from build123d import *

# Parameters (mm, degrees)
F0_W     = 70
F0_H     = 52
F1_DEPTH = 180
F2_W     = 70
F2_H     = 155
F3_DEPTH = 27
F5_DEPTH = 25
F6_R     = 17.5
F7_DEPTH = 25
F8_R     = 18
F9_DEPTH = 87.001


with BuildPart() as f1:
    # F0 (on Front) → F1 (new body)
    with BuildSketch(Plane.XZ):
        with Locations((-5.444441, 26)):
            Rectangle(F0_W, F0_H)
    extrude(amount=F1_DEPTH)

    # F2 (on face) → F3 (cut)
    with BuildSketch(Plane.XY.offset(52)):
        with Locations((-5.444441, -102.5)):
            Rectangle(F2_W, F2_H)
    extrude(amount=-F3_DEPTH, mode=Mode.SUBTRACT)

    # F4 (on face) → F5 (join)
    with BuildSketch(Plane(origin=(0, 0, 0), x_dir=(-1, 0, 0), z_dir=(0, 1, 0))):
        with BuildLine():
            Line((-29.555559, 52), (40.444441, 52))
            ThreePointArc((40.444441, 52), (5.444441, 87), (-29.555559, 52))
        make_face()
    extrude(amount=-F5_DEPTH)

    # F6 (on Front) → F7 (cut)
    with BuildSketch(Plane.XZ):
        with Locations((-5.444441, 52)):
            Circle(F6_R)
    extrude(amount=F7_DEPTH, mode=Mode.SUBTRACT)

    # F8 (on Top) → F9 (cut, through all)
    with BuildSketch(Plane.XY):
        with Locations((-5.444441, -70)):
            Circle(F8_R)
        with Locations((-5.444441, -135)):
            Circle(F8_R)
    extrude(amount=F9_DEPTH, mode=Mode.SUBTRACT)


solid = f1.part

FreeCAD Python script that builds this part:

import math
import FreeCAD as App
import Part
import Sketcher
from FreeCAD import Vector
Q = App.Units.Quantity


def add_polygon(sketch, points):
    """Adds a closed chain of lines whose ends are joined by coincident constraints."""
    first, n = sketch.GeometryCount, len(points)
    for a, b in zip(points, points[1:] + points[:1]):
        sketch.addGeometry(Part.LineSegment(App.Vector(*a, 0), App.Vector(*b, 0)), False)
    for i in range(n):
        sketch.addConstraint(Sketcher.Constraint("Coincident", first + i, 2, first + (i + 1) % n, 1))

doc = App.newDocument("Part")
body = doc.addObject("PartDesign::Body", "Body")

# Sketch on XZ plane
sketch1 = body.newObject("Sketcher::SketchObject", "Sketch")
sketch1.AttachmentSupport = (doc.getObject("XZ_Plane"), [""])
sketch1.MapMode = "FlatFace"
add_polygon(sketch1, [(-40, 52), (-40, 0), (30, 0), (30, 52)])  # lines 0-3
sketch1.addConstraint([
    Sketcher.Constraint("Vertical", 0),
    Sketcher.Constraint("Horizontal", 1),
    Sketcher.Constraint("Vertical", 2),
    Sketcher.Constraint("Horizontal", 3),
    Sketcher.Constraint("PointOnObject", 0, 2, -1),
    Sketcher.Constraint("DistanceX", 1, 1, 1, 2, Q("70 mm")),
    Sketcher.Constraint("DistanceY", 0, 2, 0, 1, Q("52 mm")),
    Sketcher.Constraint("DistanceX", 0, 2, -1, 1, Q("40.444441 mm")),
])
pad1 = body.newObject("PartDesign::Pad", "Pad")
pad1.Profile = sketch1
pad1.Length = 180

# Sketch on XY plane
sketch2 = body.newObject("Sketcher::SketchObject", "Sketch001")
sketch2.AttachmentSupport = (doc.getObject("XY_Plane"), [""])
sketch2.MapMode = "FlatFace"
sketch2.AttachmentOffset = App.Placement(Vector(0, 0, 52), App.Rotation())
add_polygon(sketch2, [(-40, -25), (-40, -180), (30, -180), (30, -25)])  # lines 0-3
sketch2.addConstraint([
    Sketcher.Constraint("Vertical", 0),
    Sketcher.Constraint("Horizontal", 1),
    Sketcher.Constraint("Vertical", 2),
    Sketcher.Constraint("Horizontal", 3),
    Sketcher.Constraint("DistanceX", 1, 1, 1, 2, Q("70 mm")),
    Sketcher.Constraint("DistanceY", 0, 2, 0, 1, Q("155 mm")),
    Sketcher.Constraint("DistanceY", 0, 2, -1, 1, Q("180 mm")),
    Sketcher.Constraint("DistanceX", 0, 2, -1, 1, Q("40.444441 mm")),
])
pocket1 = body.newObject("PartDesign::Pocket", "Pocket")
pocket1.Profile = sketch2
pocket1.Length = 27

# Sketch on XZ plane
sketch3 = body.newObject("Sketcher::SketchObject", "Sketch002")
sketch3.AttachmentSupport = (doc.getObject("XZ_Plane"), [""])
sketch3.MapMode = "FlatFace"
sketch3.addGeometry([
    Part.LineSegment(Vector(30, 52, 0), Vector(-40, 52, 0)),
    Part.ArcOfCircle(Part.Circle(Vector(-5, 52, 0), Vector(0, 0, 1), 35), math.radians(0), math.radians(180)),
], False)
sketch3.addConstraint([
    Sketcher.Constraint("Coincident", 0, 1, 1, 1),
    Sketcher.Constraint("Coincident", 1, 2, 0, 2),
    Sketcher.Constraint("Horizontal", 0),
    Sketcher.Constraint("Horizontal", 1, 3, 0, 1),
    Sketcher.Constraint("Radius", 1, Q("35 mm")),
    Sketcher.Constraint("DistanceY", -1, 1, 1, 3, Q("52 mm")),
    Sketcher.Constraint("DistanceX", 1, 3, -1, 1, Q("5.444441 mm")),
])
pad2 = body.newObject("PartDesign::Pad", "Pad001")
pad2.Profile = sketch3
pad2.Length = 25

# Sketch on XZ plane
sketch4 = body.newObject("Sketcher::SketchObject", "Sketch003")
sketch4.AttachmentSupport = (doc.getObject("XZ_Plane"), [""])
sketch4.MapMode = "FlatFace"
sketch4.addGeometry(Part.Circle(Vector(-5, 52, 0), Vector(0, 0, 1), 18), False)
sketch4.addConstraint([
    Sketcher.Constraint("Diameter", 0, Q("35 mm")),
    Sketcher.Constraint("DistanceY", -1, 1, 0, 3, Q("52 mm")),
    Sketcher.Constraint("DistanceX", 0, 3, -1, 1, Q("5.444441 mm")),
])
pocket2 = body.newObject("PartDesign::Pocket", "Pocket001")
pocket2.Profile = sketch4
pocket2.Length = 25
pocket2.Reversed = True

# Sketch on XY plane
sketch5 = body.newObject("Sketcher::SketchObject", "Sketch004")
sketch5.AttachmentSupport = (doc.getObject("XY_Plane"), [""])
sketch5.MapMode = "FlatFace"
sketch5.addGeometry([
    Part.Circle(Vector(-5, -70, 0), Vector(0, 0, 1), 18),
    Part.Circle(Vector(-5, -135, 0), Vector(0, 0, 1), 18),
], False)
sketch5.addConstraint([
    Sketcher.Constraint("Equal", 0, 1),
    Sketcher.Constraint("Vertical", 0, 3, 1, 3),
    Sketcher.Constraint("Diameter", 0, Q("36 mm")),
    Sketcher.Constraint("DistanceY", 0, 3, -1, 1, Q("70 mm")),
    Sketcher.Constraint("DistanceY", 1, 3, -1, 1, Q("135 mm")),
    Sketcher.Constraint("DistanceX", 0, 3, -1, 1, Q("5.444441 mm")),
])
pocket3 = body.newObject("PartDesign::Pocket", "Pocket002")
pocket3.Profile = sketch5
pocket3.Type = "ThroughAll"
pocket3.Reversed = True

doc.recompute()
